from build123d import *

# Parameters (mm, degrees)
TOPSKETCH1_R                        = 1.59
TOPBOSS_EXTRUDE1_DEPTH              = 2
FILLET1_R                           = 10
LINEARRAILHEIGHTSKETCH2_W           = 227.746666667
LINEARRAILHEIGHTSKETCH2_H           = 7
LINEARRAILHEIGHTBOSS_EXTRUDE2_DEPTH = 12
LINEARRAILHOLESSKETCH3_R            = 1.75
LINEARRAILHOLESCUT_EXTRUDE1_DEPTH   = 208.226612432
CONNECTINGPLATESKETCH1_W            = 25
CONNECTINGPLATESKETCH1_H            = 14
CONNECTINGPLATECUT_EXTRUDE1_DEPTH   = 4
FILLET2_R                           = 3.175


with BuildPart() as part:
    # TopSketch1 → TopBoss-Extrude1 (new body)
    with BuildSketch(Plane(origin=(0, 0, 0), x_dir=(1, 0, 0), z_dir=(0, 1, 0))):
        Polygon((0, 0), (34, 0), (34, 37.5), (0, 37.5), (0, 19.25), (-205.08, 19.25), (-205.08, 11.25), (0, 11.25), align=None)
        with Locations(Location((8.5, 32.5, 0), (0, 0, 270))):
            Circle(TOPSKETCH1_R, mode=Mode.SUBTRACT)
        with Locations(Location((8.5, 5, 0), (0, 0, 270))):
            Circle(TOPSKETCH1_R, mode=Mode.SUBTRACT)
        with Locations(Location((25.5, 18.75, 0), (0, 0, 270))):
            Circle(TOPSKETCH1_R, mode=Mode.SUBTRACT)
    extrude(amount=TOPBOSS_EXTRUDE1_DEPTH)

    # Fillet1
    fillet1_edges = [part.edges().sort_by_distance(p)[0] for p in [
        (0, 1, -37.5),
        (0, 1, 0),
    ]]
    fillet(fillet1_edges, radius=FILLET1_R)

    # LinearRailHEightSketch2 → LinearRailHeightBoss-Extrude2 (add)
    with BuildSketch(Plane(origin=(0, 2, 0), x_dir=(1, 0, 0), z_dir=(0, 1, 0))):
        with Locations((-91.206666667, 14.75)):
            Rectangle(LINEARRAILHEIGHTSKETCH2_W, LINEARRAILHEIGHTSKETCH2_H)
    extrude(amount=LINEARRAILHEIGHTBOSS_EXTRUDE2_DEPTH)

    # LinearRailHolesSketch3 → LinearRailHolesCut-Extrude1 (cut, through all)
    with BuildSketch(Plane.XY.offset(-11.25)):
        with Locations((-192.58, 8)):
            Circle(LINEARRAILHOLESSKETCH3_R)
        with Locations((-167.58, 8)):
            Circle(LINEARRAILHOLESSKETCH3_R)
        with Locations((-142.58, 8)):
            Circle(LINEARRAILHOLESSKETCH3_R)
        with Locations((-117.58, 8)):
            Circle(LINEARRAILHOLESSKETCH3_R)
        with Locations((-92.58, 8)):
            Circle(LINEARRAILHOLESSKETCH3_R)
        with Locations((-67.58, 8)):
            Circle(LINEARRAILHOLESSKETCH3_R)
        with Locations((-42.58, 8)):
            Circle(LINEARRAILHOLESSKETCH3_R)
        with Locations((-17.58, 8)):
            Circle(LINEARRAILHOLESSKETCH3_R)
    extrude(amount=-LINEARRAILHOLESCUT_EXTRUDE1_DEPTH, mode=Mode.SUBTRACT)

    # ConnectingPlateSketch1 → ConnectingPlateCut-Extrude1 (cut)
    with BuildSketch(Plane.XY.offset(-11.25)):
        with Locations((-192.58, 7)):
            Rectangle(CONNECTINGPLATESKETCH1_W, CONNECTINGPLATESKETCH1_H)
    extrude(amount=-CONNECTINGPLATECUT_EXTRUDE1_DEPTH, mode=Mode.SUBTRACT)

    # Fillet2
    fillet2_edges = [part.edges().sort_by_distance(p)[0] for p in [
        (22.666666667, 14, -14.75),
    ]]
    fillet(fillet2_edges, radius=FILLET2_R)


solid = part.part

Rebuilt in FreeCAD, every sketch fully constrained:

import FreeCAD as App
import Part
import Sketcher
from FreeCAD import Vector


def edges_at(feature, points):
    """Names of the edges that pass closest to the given points."""
    edges = feature.Shape.Edges
    near = lambda p: min(range(len(edges)), key=lambda i: edges[i].distToShape(Part.Vertex(*p))[0])
    return sorted({f"Edge{near(p) + 1}" for p in points})

doc = App.newDocument("Part")
body = doc.addObject("PartDesign::Body", "Body")

sketch1 = body.newObject("Sketcher::SketchObject", "Sketch")
sketch1.AttachmentSupport = (doc.getObject("XZ_Plane"), [""])
sketch1.MapMode = "FlatFace"
sketch1.addGeometry(Part.LineSegment(Vector(0, 0, 0), Vector(34, 0, 0)), False)
sketch1.addGeometry(Part.LineSegment(Vector(34, 0, 0), Vector(34, -37.5, 0)), False)
sketch1.addGeometry(Part.LineSegment(Vector(34, -37.5, 0), Vector(0, -37.5, 0)), False)
sketch1.addGeometry(Part.LineSegment(Vector(0, -37.5, 0), Vector(0, -19.2, 0)), False)
sketch1.addGeometry(Part.LineSegment(Vector(0, -19.2, 0), Vector(-205.1, -19.2, 0)), False)
sketch1.addGeometry(Part.LineSegment(Vector(-205.1, -19.2, 0), Vector(-205.1, -11.2, 0)), False)
sketch1.addGeometry(Part.LineSegment(Vector(-205.1, -11.2, 0), Vector(0, -11.2, 0)), False)
sketch1.addGeometry(Part.LineSegment(Vector(0, -11.2, 0), Vector(0, 0, 0)), False)
sketch1.addGeometry(Part.Circle(Vector(8.5, -5, 0), Vector(0, 0, 1), 1.6), False)
sketch1.addGeometry(Part.Circle(Vector(8.5, -32.5, 0), Vector(0, 0, 1), 1.6), False)
sketch1.addGeometry(Part.Circle(Vector(25.5, -18.8, 0), Vector(0, 0, 1), 1.6), False)
sketch1.addConstraint(Sketcher.Constraint("Coincident", 0, 2, 1, 1))
sketch1.addConstraint(Sketcher.Constraint("Coincident", 1, 2, 2, 1))
sketch1.addConstraint(Sketcher.Constraint("Coincident", 2, 2, 3, 1))
sketch1.addConstraint(Sketcher.Constraint("Coincident", 3, 2, 4, 1))
sketch1.addConstraint(Sketcher.Constraint("Coincident", 4, 2, 5, 1))
sketch1.addConstraint(Sketcher.Constraint("Coincident", 5, 2, 6, 1))
sketch1.addConstraint(Sketcher.Constraint("Coincident", 6, 2, 7, 1))
sketch1.addConstraint(Sketcher.Constraint("Coincident", 7, 2, 0, 1))
sketch1.addConstraint(Sketcher.Constraint("Horizontal", 0))
sketch1.addConstraint(Sketcher.Constraint("Vertical", 1))
sketch1.addConstraint(Sketcher.Constraint("Horizontal", 2))
sketch1.addConstraint(Sketcher.Constraint("Vertical", 3))
sketch1.addConstraint(Sketcher.Constraint("Horizontal", 4))
sketch1.addConstraint(Sketcher.Constraint("Vertical", 5))
sketch1.addConstraint(Sketcher.Constraint("Horizontal", 6))
sketch1.addConstraint(Sketcher.Constraint("Vertical", 7))
sketch1.addConstraint(Sketcher.Constraint("Coincident", 7, 2, -1, 1))
sketch1.addConstraint(Sketcher.Constraint("Equal", 8, 9))
sketch1.addConstraint(Sketcher.Constraint("Equal", 9, 10))
sketch1.addConstraint(Sketcher.Constraint("PointOnObject", 2, 2, -2))
sketch1.addConstraint(Sketcher.Constraint("Vertical", 8, 3, 9, 3))
sketch1.addConstraint(Sketcher.Constraint("Diameter", 8, 3.18))
sketch1.addConstraint(Sketcher.Constraint("DistanceX", 0, 1, 0, 2, 34.0))
sketch1.addConstraint(Sketcher.Constraint("DistanceY", 5, 1, 5, 2, 8.0))
sketch1.addConstraint(Sketcher.Constraint("DistanceY", 1, 2, 1, 1, 37.5))
sketch1.addConstraint(Sketcher.Constraint("DistanceY", 8, 3, -1, 1, 5.0))
sketch1.addConstraint(Sketcher.Constraint("DistanceX", 8, 3, 10, 3, 17.0))
sketch1.addConstraint(Sketcher.Constraint("DistanceY", 1, 2, 9, 3, 5.0))
sketch1.addConstraint(Sketcher.Constraint("DistanceX", 4, 2, 4, 1, 205.08))
sketch1.addConstraint(Sketcher.Constraint("DistanceY", 3, 1, 3, 2, 18.25))
sketch1.addConstraint(Sketcher.Constraint("DistanceX", -1, 1, 8, 3, 8.5))
sketch1.addConstraint(Sketcher.Constraint("DistanceY", 3, 2, 10, 3, 0.5))
pad1 = body.newObject("PartDesign::Pad", "Pad")
pad1.Profile = sketch1
pad1.Length = 2
pad1.Reversed = True
doc.recompute()

fillet = body.newObject("PartDesign::Fillet", "Fillet")
fillet.Base = (pad1, edges_at(pad1, [(0, 1, -37.5), (0, 1, 0)]))
fillet.Radius = 10

sketch2 = body.newObject("Sketcher::SketchObject", "Sketch001")
sketch2.AttachmentSupport = (doc.getObject("XZ_Plane"), [""])
sketch2.MapMode = "FlatFace"
sketch2.AttachmentOffset = App.Placement(Vector(0, 0, -2), App.Rotation())
sketch2.addGeometry(Part.LineSegment(Vector(-205, -18, 0), Vector(-205, -11, 0)), False)
sketch2.addGeometry(Part.LineSegment(Vector(-205, -11, 0), Vector(23, -11, 0)), False)
sketch2.addGeometry(Part.LineSegment(Vector(23, -11, 0), Vector(23, -18, 0)), False)
sketch2.addGeometry(Part.LineSegment(Vector(23, -18, 0), Vector(-205, -18, 0)), False)
sketch2.addConstraint(Sketcher.Constraint("Coincident", 0, 2, 1, 1))
sketch2.addConstraint(Sketcher.Constraint("Coincident", 1, 2, 2, 1))
sketch2.addConstraint(Sketcher.Constraint("Coincident", 2, 2, 3, 1))
sketch2.addConstraint(Sketcher.Constraint("Coincident", 3, 2, 0, 1))
sketch2.addConstraint(Sketcher.Constraint("Vertical", 0))
sketch2.addConstraint(Sketcher.Constraint("Horizontal", 1))
sketch2.addConstraint(Sketcher.Constraint("Vertical", 2))
sketch2.addConstraint(Sketcher.Constraint("Horizontal", 3))
sketch2.addConstraint(Sketcher.Constraint("DistanceY", 0, 1, 0, 2, 7.0))
sketch2.addConstraint(Sketcher.Constraint("DistanceX", 0, 2, -1, 1, 205.08))
sketch2.addConstraint(Sketcher.Constraint("DistanceY", 0, 2, -1, 1, 11.25))
sketch2.addConstraint(Sketcher.Constraint("DistanceX", 1, 1, 1, 2, 227.746667))
pad2 = body.newObject("PartDesign::Pad", "Pad001")
pad2.Profile = sketch2
pad2.Length = 12
pad2.Reversed = True

sketch3 = body.newObject("Sketcher::SketchObject", "Sketch002")
sketch3.AttachmentSupport = (doc.getObject("XY_Plane"), [""])
sketch3.MapMode = "FlatFace"
sketch3.AttachmentOffset = App.Placement(Vector(0, 0, -11.25), App.Rotation())
sketch3.addGeometry(Part.Circle(Vector(-192.6, 8, 0), Vector(0, 0, 1), 1.8), False)
sketch3.addGeometry(Part.Circle(Vector(-167.6, 8, 0), Vector(0, 0, 1), 1.8), False)
sketch3.addGeometry(Part.Circle(Vector(-142.6, 8, 0), Vector(0, 0, 1), 1.8), False)
sketch3.addGeometry(Part.Circle(Vector(-117.6, 8, 0), Vector(0, 0, 1), 1.8), False)
sketch3.addGeometry(Part.Circle(Vector(-92.6, 8, 0), Vector(0, 0, 1), 1.8), False)
sketch3.addGeometry(Part.Circle(Vector(-67.6, 8, 0), Vector(0, 0, 1), 1.8), False)
sketch3.addGeometry(Part.Circle(Vector(-42.6, 8, 0), Vector(0, 0, 1), 1.8), False)
sketch3.addGeometry(Part.Circle(Vector(-17.6, 8, 0), Vector(0, 0, 1), 1.8), False)
sketch3.addConstraint(Sketcher.Constraint("Equal", 0, 1))
sketch3.addConstraint(Sketcher.Constraint("Equal", 1, 2))
sketch3.addConstraint(Sketcher.Constraint("Equal", 2, 3))
sketch3.addConstraint(Sketcher.Constraint("Equal", 3, 4))
sketch3.addConstraint(Sketcher.Constraint("Equal", 4, 5))
sketch3.addConstraint(Sketcher.Constraint("Equal", 5, 6))
sketch3.addConstraint(Sketcher.Constraint("Equal", 6, 7))
sketch3.addConstraint(Sketcher.Constraint("Horizontal", 0, 3, 1, 3))
sketch3.addConstraint(Sketcher.Constraint("Horizontal", 1, 3, 2, 3))
sketch3.addConstraint(Sketcher.Constraint("Horizontal", 2, 3, 3, 3))
sketch3.addConstraint(Sketcher.Constraint("Horizontal", 3, 3, 4, 3))
sketch3.addConstraint(Sketcher.Constraint("Horizontal", 4, 3, 5, 3))
sketch3.addConstraint(Sketcher.Constraint("Horizontal", 5, 3, 6, 3))
sketch3.addConstraint(Sketcher.Constraint("Horizontal", 6, 3, 7, 3))
sketch3.addConstraint(Sketcher.Constraint("Diameter", 0, 3.5))
sketch3.addConstraint(Sketcher.Constraint("DistanceY", -1, 1, 0, 3, 8.0))
sketch3.addConstraint(Sketcher.Constraint("DistanceX", 0, 3, 1, 3, 25.0))
sketch3.addConstraint(Sketcher.Constraint("DistanceX", 1, 3, 2, 3, 25.0))
sketch3.addConstraint(Sketcher.Constraint("DistanceX", 2, 3, 3, 3, 25.0))
sketch3.addConstraint(Sketcher.Constraint("DistanceX", 3, 3, 4, 3, 25.0))
sketch3.addConstraint(Sketcher.Constraint("DistanceX", 4, 3, 5, 3, 25.0))
sketch3.addConstraint(Sketcher.Constraint("DistanceX", 5, 3, 6, 3, 25.0))
sketch3.addConstraint(Sketcher.Constraint("DistanceX", 6, 3, 7, 3, 25.0))
sketch3.addConstraint(Sketcher.Constraint("DistanceX", 0, 3, -1, 1, 192.58))
pocket1 = body.newObject("PartDesign::Pocket", "Pocket")
pocket1.Profile = sketch3
pocket1.Type = "ThroughAll"

sketch4 = body.newObject("Sketcher::SketchObject", "Sketch003")
sketch4.AttachmentSupport = (doc.getObject("XY_Plane"), [""])
sketch4.MapMode = "FlatFace"
sketch4.AttachmentOffset = App.Placement(Vector(0, 0, -11.25), App.Rotation())
sketch4.addGeometry(Part.LineSegment(Vector(-205, 14, 0), Vector(-205, 0, 0)), False)
sketch4.addGeometry(Part.LineSegment(Vector(-205, 0, 0), Vector(-180, 0, 0)), False)
sketch4.addGeometry(Part.LineSegment(Vector(-180, 0, 0), Vector(-180, 14, 0)), False)
sketch4.addGeometry(Part.LineSegment(Vector(-180, 14, 0), Vector(-205, 14, 0)), False)
sketch4.addConstraint(Sketcher.Constraint("Coincident", 0, 2, 1, 1))
sketch4.addConstraint(Sketcher.Constraint("Coincident", 1, 2, 2, 1))
sketch4.addConstraint(Sketcher.Constraint("Coincident", 2, 2, 3, 1))
sketch4.addConstraint(Sketcher.Constraint("Coincident", 3, 2, 0, 1))
sketch4.addConstraint(Sketcher.Constraint("Vertical", 0))
sketch4.addConstraint(Sketcher.Constraint("Horizontal", 1))
sketch4.addConstraint(Sketcher.Constraint("Vertical", 2))
sketch4.addConstraint(Sketcher.Constraint("Horizontal", 3))
sketch4.addConstraint(Sketcher.Constraint("PointOnObject", 0, 2, -1))
sketch4.addConstraint(Sketcher.Constraint("DistanceX", 1, 1, 1, 2, 25.0))
sketch4.addConstraint(Sketcher.Constraint("DistanceY", 0, 2, 0, 1, 14.0))
sketch4.addConstraint(Sketcher.Constraint("DistanceX", 0, 2, -1, 1, 205.08))
pocket2 = body.newObject("PartDesign::Pocket", "Pocket001")
pocket2.Profile = sketch4
pocket2.Length = 4
doc.recompute()

fillet2 = body.newObject("PartDesign::Fillet", "Fillet001")
fillet2.Base = (pocket2, edges_at(pocket2, [(22.667, 14, -14.75)]))
fillet2.Radius = 3.175

doc.recompute()
